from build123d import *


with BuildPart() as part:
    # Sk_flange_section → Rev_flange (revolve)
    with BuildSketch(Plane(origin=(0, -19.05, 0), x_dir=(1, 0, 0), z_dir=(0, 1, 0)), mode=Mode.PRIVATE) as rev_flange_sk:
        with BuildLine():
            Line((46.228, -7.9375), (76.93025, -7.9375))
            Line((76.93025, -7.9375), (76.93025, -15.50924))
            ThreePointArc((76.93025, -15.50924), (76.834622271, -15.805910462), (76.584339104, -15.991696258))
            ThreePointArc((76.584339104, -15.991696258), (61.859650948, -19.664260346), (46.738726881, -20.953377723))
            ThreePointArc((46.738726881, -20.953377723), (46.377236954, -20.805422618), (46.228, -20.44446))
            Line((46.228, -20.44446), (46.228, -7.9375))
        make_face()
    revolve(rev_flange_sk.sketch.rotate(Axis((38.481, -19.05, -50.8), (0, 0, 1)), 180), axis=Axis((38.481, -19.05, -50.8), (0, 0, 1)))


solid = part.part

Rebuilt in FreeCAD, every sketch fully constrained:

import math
import FreeCAD as App
import Part
import Sketcher
from FreeCAD import Vector

doc = App.newDocument("Part")
body = doc.addObject("PartDesign::Body", "Body")

sketch1 = body.newObject("Sketcher::SketchObject", "Sketch")
sketch1.AttachmentSupport = (doc.getObject("XZ_Plane"), [""])
sketch1.MapMode = "FlatFace"
sketch1.AttachmentOffset = App.Placement(Vector(0, 0, 19.05), App.Rotation())
sketch1.addGeometry([
    Part.LineSegment(Vector(76.9, 7.9, 0), Vector(46.2, 7.9, 0)),
    Part.LineSegment(Vector(46.2, 7.9, 0), Vector(46.2, 20.4, 0)),
    Part.ArcOfCircle(Part.Circle(Vector(46.7, 20.4, 0), Vector(0, 0, 1), 0.5), math.radians(90), math.radians(180)),
    Part.ArcOfCircle(Part.Circle(Vector(46.2, -74.4, 0), Vector(0, 0, 1), 95.3), math.radians(71.43), math.radians(89.69)),
    Part.ArcOfCircle(Part.Circle(Vector(76.4, 15.5, 0), Vector(0, 0, 1), 0.5), math.radians(0), math.radians(71)),
    Part.LineSegment(Vector(76.9, 15.5, 0), Vector(76.9, 7.9, 0)),
], False)
sketch1.addGeometry(Part.LineSegment(Vector(38.5, -74.4, 0), Vector(38.5, 21, 0)), True)
sketch1.addConstraint([
    Sketcher.Constraint("Coincident", 0, 2, 1, 1),
    Sketcher.Constraint("Coincident", 1, 2, 2, 2),
    Sketcher.Constraint("Coincident", 2, 1, 3, 2),
    Sketcher.Constraint("Coincident", 3, 1, 4, 2),
    Sketcher.Constraint("Coincident", 4, 1, 5, 1),
    Sketcher.Constraint("Coincident", 5, 2, 0, 1),
    Sketcher.Constraint("Horizontal", 0),
    Sketcher.Constraint("Vertical", 1),
    Sketcher.Constraint("Vertical", 5),
    Sketcher.Constraint("Vertical", 6),
    Sketcher.Constraint("Horizontal", 3, 3, 6, 1),
    Sketcher.Constraint("Horizontal", 2, 1, 6, 2),
    Sketcher.Constraint("Vertical", 3, 3, 0, 2),
    Sketcher.Constraint("Radius", 2, 0.50736),
    Sketcher.Constraint("DistanceX", -1, 1, 3, 3, 46.228),
    Sketcher.Constraint("DistanceX", -1, 1, 6, 1, 38.481),
    Sketcher.Constraint("Radius", 3, 95.318326),
    Sketcher.Constraint("Radius", 4, 0.510555),
    Sketcher.Constraint("DistanceX", 0, 2, 0, 1, 30.70225),
    Sketcher.Constraint("DistanceY", 1, 1, 1, 2, 12.50696),
    Sketcher.Constraint("DistanceY", 5, 2, 5, 1, 7.57174),
    Sketcher.Constraint("DistanceY", -1, 1, 0, 2, 7.9375),
    Sketcher.Constraint("DistanceY", -1, 1, 2, 3, 20.446029),
    Sketcher.Constraint("DistanceX", -1, 1, 3, 1, 76.584339),
    Sketcher.Constraint("DistanceX", 2, 3, 2, 1, 0.003369),
])
revolution = body.newObject("PartDesign::Revolution", "Revolution")
revolution.Profile = sketch1
revolution.ReferenceAxis = (sketch1, ["Axis0"])
revolution.Angle = 360

doc.recompute()
